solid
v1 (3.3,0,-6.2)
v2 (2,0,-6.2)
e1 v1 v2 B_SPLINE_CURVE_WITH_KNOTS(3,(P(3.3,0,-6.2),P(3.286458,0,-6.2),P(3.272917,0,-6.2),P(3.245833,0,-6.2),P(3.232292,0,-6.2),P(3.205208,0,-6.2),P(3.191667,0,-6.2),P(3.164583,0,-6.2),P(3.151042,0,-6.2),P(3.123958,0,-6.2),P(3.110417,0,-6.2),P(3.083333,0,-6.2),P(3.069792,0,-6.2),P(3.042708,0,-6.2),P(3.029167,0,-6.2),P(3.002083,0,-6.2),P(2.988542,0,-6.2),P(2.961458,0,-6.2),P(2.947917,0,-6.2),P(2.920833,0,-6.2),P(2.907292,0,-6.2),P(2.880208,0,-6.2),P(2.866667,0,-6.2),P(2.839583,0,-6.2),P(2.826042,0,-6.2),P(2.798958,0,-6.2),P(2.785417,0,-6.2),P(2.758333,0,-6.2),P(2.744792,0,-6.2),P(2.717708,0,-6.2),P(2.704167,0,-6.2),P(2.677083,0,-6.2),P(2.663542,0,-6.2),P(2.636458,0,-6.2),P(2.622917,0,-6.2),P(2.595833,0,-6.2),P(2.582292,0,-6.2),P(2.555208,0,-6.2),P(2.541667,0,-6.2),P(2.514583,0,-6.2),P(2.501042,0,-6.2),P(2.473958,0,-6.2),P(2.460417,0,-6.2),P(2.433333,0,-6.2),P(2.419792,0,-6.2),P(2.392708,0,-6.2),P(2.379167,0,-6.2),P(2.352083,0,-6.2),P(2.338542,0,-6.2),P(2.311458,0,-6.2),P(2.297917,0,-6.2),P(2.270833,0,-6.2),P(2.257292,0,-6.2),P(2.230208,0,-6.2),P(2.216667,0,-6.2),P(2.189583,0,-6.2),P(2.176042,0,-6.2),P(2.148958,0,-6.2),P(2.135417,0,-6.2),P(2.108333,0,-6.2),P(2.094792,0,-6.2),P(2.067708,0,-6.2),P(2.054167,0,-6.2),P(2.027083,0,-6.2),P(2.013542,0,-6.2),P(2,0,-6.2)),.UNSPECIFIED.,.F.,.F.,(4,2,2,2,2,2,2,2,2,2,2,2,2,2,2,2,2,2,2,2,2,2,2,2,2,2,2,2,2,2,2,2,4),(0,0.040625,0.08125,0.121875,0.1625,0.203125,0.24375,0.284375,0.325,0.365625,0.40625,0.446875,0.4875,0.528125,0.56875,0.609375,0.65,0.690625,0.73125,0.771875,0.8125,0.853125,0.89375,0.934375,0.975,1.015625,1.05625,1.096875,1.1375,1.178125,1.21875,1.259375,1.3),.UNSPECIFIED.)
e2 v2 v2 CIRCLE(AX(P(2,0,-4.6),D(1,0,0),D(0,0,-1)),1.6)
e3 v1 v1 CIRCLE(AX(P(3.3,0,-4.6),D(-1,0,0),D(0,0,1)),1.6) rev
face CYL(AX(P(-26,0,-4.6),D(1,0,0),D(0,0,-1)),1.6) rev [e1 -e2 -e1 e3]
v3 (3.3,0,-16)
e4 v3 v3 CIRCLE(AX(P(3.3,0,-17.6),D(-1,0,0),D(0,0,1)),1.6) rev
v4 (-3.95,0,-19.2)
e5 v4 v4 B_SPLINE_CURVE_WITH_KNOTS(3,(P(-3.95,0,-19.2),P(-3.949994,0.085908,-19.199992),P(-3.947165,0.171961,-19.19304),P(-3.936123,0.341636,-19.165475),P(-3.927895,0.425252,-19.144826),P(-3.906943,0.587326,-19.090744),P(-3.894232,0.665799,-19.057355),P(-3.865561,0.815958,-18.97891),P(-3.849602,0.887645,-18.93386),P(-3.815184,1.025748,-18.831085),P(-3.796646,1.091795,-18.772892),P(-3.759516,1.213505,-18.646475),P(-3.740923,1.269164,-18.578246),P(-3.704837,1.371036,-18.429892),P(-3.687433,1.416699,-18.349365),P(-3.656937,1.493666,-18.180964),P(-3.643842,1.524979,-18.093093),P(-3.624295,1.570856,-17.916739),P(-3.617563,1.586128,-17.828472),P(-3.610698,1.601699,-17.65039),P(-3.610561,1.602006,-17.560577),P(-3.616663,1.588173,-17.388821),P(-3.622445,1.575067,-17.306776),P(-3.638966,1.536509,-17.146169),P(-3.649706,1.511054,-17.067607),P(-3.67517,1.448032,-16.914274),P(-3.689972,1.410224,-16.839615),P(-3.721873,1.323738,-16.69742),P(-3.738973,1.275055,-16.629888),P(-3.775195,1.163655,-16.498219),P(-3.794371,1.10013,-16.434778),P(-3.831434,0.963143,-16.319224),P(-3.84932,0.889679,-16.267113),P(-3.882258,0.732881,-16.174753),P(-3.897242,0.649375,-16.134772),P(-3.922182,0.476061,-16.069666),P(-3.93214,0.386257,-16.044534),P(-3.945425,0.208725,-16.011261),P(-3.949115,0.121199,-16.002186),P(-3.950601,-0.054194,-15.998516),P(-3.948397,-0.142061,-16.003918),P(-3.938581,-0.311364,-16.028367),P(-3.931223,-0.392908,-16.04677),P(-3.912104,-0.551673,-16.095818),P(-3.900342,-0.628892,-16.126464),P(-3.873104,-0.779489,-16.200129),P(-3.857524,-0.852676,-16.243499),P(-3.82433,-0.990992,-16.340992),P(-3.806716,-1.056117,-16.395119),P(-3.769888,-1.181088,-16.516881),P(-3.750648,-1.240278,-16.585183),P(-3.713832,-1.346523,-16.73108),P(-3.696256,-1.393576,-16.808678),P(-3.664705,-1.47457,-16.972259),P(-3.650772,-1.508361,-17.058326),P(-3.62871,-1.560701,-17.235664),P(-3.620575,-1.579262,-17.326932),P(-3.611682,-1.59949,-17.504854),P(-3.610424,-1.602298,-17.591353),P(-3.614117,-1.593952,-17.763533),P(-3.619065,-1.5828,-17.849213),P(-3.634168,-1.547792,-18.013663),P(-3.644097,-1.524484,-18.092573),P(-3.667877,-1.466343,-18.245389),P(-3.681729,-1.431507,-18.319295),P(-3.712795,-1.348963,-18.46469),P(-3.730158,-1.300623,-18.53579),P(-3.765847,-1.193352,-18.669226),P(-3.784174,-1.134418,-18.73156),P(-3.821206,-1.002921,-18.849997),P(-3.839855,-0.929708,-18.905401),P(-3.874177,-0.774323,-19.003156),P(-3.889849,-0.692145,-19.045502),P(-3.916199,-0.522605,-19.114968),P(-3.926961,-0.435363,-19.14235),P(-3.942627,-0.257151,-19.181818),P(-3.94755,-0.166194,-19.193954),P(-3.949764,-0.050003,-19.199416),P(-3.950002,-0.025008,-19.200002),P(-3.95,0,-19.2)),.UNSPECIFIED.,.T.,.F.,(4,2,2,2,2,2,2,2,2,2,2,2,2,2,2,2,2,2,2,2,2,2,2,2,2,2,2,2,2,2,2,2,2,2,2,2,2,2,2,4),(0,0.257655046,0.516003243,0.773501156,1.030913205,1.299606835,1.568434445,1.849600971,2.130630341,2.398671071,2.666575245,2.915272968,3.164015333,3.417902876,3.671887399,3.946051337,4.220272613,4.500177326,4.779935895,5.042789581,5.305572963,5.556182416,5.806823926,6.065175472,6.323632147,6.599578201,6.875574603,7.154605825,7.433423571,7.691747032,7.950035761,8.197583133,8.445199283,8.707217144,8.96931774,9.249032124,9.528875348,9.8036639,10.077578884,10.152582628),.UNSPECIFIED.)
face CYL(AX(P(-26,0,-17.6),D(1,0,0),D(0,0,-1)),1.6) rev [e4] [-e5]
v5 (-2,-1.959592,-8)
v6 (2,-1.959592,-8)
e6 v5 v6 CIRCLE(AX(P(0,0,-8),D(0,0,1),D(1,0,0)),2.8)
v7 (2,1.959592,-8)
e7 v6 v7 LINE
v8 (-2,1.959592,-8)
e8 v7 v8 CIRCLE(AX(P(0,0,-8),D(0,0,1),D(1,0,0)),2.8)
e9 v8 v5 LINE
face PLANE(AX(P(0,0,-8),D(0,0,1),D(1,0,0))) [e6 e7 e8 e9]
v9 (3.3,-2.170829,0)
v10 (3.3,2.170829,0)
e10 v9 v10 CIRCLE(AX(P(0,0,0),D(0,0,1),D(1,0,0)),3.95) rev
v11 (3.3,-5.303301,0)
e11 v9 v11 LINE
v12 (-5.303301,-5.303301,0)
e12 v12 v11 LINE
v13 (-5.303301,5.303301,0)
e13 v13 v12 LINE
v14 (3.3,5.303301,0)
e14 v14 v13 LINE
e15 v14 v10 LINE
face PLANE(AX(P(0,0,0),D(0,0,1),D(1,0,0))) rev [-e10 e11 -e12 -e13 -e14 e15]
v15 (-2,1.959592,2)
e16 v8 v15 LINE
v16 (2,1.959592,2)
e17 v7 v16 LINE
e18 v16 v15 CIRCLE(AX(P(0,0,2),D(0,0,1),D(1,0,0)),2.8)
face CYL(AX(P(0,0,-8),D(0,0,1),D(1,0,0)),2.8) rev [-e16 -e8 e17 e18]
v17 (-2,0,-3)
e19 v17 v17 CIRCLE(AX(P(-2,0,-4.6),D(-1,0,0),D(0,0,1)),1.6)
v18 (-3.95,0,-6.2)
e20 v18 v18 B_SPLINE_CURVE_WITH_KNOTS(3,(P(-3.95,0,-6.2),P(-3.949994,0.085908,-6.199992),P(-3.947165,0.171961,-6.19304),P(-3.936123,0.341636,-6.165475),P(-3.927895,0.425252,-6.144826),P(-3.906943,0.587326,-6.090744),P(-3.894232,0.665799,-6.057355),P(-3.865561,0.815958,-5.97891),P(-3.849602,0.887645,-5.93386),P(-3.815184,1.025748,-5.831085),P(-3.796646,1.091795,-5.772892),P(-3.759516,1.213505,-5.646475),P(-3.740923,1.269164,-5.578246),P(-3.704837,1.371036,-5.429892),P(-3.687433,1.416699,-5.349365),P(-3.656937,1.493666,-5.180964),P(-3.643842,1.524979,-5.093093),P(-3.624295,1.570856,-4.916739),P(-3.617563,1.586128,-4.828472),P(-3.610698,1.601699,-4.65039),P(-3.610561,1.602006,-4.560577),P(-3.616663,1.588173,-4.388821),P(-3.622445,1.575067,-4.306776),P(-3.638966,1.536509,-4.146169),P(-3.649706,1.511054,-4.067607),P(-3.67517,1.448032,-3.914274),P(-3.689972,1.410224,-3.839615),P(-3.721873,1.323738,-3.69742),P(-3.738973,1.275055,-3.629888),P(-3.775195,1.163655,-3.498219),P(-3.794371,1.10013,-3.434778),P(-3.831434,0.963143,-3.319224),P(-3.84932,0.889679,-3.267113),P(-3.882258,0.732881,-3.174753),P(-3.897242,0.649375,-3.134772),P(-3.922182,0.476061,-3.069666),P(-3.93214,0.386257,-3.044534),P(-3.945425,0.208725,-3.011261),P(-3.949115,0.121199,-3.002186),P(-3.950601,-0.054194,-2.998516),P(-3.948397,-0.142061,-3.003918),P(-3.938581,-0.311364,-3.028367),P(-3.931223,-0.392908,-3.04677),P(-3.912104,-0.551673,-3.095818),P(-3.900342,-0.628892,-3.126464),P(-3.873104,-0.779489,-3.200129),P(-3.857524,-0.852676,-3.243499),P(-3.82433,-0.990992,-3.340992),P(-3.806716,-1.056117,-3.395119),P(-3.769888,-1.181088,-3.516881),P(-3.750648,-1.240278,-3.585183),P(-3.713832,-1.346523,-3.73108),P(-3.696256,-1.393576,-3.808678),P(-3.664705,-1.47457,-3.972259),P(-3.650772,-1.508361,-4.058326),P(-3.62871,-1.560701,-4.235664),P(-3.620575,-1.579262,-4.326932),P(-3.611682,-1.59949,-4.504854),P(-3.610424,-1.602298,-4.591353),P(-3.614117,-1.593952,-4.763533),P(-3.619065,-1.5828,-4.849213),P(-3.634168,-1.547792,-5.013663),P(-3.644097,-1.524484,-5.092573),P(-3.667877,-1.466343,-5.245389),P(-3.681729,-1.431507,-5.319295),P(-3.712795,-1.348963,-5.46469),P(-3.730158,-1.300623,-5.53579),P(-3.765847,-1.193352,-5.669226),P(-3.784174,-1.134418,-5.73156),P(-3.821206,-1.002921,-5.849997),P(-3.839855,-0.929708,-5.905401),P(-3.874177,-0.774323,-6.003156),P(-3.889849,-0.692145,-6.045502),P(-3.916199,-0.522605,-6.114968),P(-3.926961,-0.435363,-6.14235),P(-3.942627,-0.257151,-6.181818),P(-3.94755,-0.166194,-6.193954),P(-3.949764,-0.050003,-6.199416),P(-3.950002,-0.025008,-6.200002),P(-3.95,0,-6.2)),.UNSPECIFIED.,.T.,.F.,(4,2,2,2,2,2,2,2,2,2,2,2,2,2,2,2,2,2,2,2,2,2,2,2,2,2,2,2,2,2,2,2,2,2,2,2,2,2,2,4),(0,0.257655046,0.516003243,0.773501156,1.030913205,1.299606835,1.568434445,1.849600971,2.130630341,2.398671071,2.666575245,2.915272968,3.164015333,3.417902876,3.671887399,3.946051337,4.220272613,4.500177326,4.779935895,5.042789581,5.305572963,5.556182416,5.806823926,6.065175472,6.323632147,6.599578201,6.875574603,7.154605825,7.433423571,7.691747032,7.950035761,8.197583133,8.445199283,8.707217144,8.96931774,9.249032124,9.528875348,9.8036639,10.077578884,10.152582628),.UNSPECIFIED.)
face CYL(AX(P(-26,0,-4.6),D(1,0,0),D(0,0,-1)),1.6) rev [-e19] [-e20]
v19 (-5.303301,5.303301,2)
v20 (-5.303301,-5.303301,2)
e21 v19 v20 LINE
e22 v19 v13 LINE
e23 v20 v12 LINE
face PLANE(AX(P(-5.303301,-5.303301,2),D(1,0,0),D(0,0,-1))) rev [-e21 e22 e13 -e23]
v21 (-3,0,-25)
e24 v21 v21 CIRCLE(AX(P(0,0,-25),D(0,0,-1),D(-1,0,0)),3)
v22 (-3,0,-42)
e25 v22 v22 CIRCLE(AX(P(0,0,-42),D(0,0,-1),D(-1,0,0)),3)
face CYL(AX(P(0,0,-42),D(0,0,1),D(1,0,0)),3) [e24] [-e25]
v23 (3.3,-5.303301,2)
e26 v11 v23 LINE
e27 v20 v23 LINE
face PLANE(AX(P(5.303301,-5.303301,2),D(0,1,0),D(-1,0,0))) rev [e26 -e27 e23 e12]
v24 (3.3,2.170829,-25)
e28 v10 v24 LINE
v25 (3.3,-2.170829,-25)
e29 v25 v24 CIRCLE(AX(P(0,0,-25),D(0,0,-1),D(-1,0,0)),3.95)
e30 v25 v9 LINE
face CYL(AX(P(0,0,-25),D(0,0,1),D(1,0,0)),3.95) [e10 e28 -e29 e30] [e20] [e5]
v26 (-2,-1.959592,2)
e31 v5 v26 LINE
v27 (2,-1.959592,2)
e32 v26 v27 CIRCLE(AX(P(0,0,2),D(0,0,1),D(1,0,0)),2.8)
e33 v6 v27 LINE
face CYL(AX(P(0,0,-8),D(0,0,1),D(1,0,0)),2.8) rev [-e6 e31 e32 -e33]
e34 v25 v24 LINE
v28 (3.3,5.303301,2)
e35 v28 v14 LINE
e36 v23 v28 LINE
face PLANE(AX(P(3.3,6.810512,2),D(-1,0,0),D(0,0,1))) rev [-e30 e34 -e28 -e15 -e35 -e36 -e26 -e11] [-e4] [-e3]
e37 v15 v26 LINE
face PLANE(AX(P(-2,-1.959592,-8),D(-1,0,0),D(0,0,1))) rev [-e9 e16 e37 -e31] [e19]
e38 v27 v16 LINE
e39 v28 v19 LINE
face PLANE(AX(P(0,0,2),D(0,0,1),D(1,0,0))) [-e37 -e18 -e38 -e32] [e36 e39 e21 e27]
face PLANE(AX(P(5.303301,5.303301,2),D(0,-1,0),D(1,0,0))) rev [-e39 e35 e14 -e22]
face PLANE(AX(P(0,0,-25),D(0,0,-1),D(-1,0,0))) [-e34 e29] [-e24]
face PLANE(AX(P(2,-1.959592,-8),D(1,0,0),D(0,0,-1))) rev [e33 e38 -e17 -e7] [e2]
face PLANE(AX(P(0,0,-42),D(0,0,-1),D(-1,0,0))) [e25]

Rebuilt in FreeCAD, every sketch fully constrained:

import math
import FreeCAD as App
import Part
import Sketcher


def add_polygon(sketch, points):
    """Adds a closed chain of lines whose ends are joined by coincident constraints."""
    first, n = sketch.GeometryCount, len(points)
    for a, b in zip(points, points[1:] + points[:1]):
        sketch.addGeometry(Part.LineSegment(App.Vector(*a, 0), App.Vector(*b, 0)), False)
    for i in range(n):
        sketch.addConstraint(Sketcher.Constraint("Coincident", first + i, 2, first + (i + 1) % n, 1))

doc = App.newDocument("Part")
body = doc.addObject("PartDesign::Body", "Body")

# Sketch on XY plane
sketch1 = body.newObject("Sketcher::SketchObject", "Sketch")
sketch1.AttachmentSupport = (doc.getObject("XY_Plane"), [""])
sketch1.MapMode = "FlatFace"
add_polygon(sketch1, [(-5, 5), (-5, -5), (5, -5), (5, 5)])  # lines 0-3
sketch1.addConstraint([
    Sketcher.Constraint("Vertical", 0),
    Sketcher.Constraint("Horizontal", 1),
    Sketcher.Constraint("Vertical", 2),
    Sketcher.Constraint("Horizontal", 3),
    Sketcher.Constraint("Symmetric", 0, 2, 2, 2, -1, 1),
    Sketcher.Constraint("Equal", 3, 0),
    Sketcher.Constraint("DistanceX", 1, 1, 1, 2, 10.606602),
])
pad1 = body.newObject("PartDesign::Pad", "Pad")
pad1.Profile = sketch1
pad1.Length = 2

# Sketch on XY plane
sketch2 = body.newObject("Sketcher::SketchObject", "Sketch001")
sketch2.AttachmentSupport = (doc.getObject("XY_Plane"), [""])
sketch2.MapMode = "FlatFace"
sketch2.addGeometry(Part.Circle(App.Vector(0, 0, 0), App.Vector(0, 0, 1), 4), False)
sketch2.addConstraint([
    Sketcher.Constraint("Coincident", 0, 3, -1, 1),
    Sketcher.Constraint("Diameter", 0, 7.9),
])
pad2 = body.newObject("PartDesign::Pad", "Pad001")
pad2.Profile = sketch2
pad2.Length = 25
pad2.Reversed = True

# Sketch on XY plane
sketch3 = body.newObject("Sketcher::SketchObject", "Sketch002")
sketch3.AttachmentSupport = (doc.getObject("XY_Plane"), [""])
sketch3.MapMode = "FlatFace"
sketch3.AttachmentOffset = App.Placement(App.Vector(0, 0, 2), App.Rotation())
sketch3.addGeometry([
    Part.LineSegment(App.Vector(-2, 2, 0), App.Vector(-2, -2, 0)),
    Part.ArcOfCircle(Part.Circle(App.Vector(0, 0, 0), App.Vector(0, 0, 1), 2.8), math.radians(-136), math.radians(-44)),
    Part.LineSegment(App.Vector(2, -2, 0), App.Vector(2, 2, 0)),
    Part.ArcOfCircle(Part.Circle(App.Vector(0, 0, 0), App.Vector(0, 0, 1), 2.8), math.radians(44), math.radians(136)),
], False)
sketch3.addConstraint([
    Sketcher.Constraint("Coincident", 0, 2, 1, 1),
    Sketcher.Constraint("Coincident", 1, 2, 2, 1),
    Sketcher.Constraint("Coincident", 2, 2, 3, 1),
    Sketcher.Constraint("Coincident", 3, 2, 0, 1),
    Sketcher.Constraint("Vertical", 0),
    Sketcher.Constraint("Vertical", 2),
    Sketcher.Constraint("Coincident", 1, 3, -1, 1),
    Sketcher.Constraint("Coincident", 3, 3, -1, 1),
    Sketcher.Constraint("Equal", 1, 3),
    Sketcher.Constraint("Horizontal", 0, 2, 1, 2),
    Sketcher.Constraint("Radius", 1, 2.8),
    Sketcher.Constraint("DistanceX", 0, 2, -1, 1, 2.0),
])
pocket1 = body.newObject("PartDesign::Pocket", "Pocket")
pocket1.Profile = sketch3
pocket1.Length = 10

# Sketch on YZ plane
sketch4 = body.newObject("Sketcher::SketchObject", "Sketch003")
sketch4.AttachmentSupport = (doc.getObject("YZ_Plane"), [""])
sketch4.MapMode = "FlatFace"
sketch4.addGeometry([
    Part.Circle(App.Vector(0, -4.6, 0), App.Vector(0, 0, 1), 1.6),
    Part.Circle(App.Vector(0, -17.6, 0), App.Vector(0, 0, 1), 1.6),
], False)
sketch4.addConstraint([
    Sketcher.Constraint("Equal", 0, 1),
    Sketcher.Constraint("PointOnObject", 0, 3, -2),
    Sketcher.Constraint("PointOnObject", 1, 3, -2),
    Sketcher.Constraint("Diameter", 0, 3.2),
    Sketcher.Constraint("DistanceY", 1, 3, 0, 3, 13.0),
    Sketcher.Constraint("DistanceY", 0, 3, -1, 1, 4.6),
])
pocket2 = body.newObject("PartDesign::Pocket", "Pocket001")
pocket2.Profile = sketch4
pocket2.Length = 52
pocket2.Midplane = True

# Sketch on XY plane
sketch5 = body.newObject("Sketcher::SketchObject", "Sketch004")
sketch5.AttachmentSupport = (doc.getObject("XY_Plane"), [""])
sketch5.MapMode = "FlatFace"
sketch5.AttachmentOffset = App.Placement(App.Vector(0, 0, -25), App.Rotation())
add_polygon(sketch5, [(8, 7), (8, -7), (3, -7), (3, 7)])  # lines 0-3
sketch5.addConstraint([
    Sketcher.Constraint("Vertical", 0),
    Sketcher.Constraint("Horizontal", 1),
    Sketcher.Constraint("Vertical", 2),
    Sketcher.Constraint("Horizontal", 3),
    Sketcher.Constraint("DistanceX", 1, 2, 1, 1, 5.0),
    Sketcher.Constraint("DistanceX", -1, 1, 0, 2, 8.3),
    Sketcher.Constraint("DistanceY", 0, 2, 0, 1, 13.621025),
    Sketcher.Constraint("DistanceY", 0, 2, -1, 1, 6.810512),
])
pocket3 = body.newObject("PartDesign::Pocket", "Pocket002")
pocket3.Profile = sketch5
pocket3.Type = "ThroughAll"
pocket3.Reversed = True

# Sketch on XY plane
sketch6 = body.newObject("Sketcher::SketchObject", "Sketch005")
sketch6.AttachmentSupport = (doc.getObject("XY_Plane"), [""])
sketch6.MapMode = "FlatFace"
sketch6.AttachmentOffset = App.Placement(App.Vector(0, 0, -25), App.Rotation())
sketch6.addGeometry(Part.Circle(App.Vector(0, 0, 0), App.Vector(0, 0, 1), 3), False)
sketch6.addConstraint([
    Sketcher.Constraint("Coincident", 0, 3, -1, 1),
    Sketcher.Constraint("Diameter", 0, 6.0),
])
pad3 = body.newObject("PartDesign::Pad", "Pad002")
pad3.Profile = sketch6
pad3.Length = 17
pad3.Reversed = True

doc.recompute()
